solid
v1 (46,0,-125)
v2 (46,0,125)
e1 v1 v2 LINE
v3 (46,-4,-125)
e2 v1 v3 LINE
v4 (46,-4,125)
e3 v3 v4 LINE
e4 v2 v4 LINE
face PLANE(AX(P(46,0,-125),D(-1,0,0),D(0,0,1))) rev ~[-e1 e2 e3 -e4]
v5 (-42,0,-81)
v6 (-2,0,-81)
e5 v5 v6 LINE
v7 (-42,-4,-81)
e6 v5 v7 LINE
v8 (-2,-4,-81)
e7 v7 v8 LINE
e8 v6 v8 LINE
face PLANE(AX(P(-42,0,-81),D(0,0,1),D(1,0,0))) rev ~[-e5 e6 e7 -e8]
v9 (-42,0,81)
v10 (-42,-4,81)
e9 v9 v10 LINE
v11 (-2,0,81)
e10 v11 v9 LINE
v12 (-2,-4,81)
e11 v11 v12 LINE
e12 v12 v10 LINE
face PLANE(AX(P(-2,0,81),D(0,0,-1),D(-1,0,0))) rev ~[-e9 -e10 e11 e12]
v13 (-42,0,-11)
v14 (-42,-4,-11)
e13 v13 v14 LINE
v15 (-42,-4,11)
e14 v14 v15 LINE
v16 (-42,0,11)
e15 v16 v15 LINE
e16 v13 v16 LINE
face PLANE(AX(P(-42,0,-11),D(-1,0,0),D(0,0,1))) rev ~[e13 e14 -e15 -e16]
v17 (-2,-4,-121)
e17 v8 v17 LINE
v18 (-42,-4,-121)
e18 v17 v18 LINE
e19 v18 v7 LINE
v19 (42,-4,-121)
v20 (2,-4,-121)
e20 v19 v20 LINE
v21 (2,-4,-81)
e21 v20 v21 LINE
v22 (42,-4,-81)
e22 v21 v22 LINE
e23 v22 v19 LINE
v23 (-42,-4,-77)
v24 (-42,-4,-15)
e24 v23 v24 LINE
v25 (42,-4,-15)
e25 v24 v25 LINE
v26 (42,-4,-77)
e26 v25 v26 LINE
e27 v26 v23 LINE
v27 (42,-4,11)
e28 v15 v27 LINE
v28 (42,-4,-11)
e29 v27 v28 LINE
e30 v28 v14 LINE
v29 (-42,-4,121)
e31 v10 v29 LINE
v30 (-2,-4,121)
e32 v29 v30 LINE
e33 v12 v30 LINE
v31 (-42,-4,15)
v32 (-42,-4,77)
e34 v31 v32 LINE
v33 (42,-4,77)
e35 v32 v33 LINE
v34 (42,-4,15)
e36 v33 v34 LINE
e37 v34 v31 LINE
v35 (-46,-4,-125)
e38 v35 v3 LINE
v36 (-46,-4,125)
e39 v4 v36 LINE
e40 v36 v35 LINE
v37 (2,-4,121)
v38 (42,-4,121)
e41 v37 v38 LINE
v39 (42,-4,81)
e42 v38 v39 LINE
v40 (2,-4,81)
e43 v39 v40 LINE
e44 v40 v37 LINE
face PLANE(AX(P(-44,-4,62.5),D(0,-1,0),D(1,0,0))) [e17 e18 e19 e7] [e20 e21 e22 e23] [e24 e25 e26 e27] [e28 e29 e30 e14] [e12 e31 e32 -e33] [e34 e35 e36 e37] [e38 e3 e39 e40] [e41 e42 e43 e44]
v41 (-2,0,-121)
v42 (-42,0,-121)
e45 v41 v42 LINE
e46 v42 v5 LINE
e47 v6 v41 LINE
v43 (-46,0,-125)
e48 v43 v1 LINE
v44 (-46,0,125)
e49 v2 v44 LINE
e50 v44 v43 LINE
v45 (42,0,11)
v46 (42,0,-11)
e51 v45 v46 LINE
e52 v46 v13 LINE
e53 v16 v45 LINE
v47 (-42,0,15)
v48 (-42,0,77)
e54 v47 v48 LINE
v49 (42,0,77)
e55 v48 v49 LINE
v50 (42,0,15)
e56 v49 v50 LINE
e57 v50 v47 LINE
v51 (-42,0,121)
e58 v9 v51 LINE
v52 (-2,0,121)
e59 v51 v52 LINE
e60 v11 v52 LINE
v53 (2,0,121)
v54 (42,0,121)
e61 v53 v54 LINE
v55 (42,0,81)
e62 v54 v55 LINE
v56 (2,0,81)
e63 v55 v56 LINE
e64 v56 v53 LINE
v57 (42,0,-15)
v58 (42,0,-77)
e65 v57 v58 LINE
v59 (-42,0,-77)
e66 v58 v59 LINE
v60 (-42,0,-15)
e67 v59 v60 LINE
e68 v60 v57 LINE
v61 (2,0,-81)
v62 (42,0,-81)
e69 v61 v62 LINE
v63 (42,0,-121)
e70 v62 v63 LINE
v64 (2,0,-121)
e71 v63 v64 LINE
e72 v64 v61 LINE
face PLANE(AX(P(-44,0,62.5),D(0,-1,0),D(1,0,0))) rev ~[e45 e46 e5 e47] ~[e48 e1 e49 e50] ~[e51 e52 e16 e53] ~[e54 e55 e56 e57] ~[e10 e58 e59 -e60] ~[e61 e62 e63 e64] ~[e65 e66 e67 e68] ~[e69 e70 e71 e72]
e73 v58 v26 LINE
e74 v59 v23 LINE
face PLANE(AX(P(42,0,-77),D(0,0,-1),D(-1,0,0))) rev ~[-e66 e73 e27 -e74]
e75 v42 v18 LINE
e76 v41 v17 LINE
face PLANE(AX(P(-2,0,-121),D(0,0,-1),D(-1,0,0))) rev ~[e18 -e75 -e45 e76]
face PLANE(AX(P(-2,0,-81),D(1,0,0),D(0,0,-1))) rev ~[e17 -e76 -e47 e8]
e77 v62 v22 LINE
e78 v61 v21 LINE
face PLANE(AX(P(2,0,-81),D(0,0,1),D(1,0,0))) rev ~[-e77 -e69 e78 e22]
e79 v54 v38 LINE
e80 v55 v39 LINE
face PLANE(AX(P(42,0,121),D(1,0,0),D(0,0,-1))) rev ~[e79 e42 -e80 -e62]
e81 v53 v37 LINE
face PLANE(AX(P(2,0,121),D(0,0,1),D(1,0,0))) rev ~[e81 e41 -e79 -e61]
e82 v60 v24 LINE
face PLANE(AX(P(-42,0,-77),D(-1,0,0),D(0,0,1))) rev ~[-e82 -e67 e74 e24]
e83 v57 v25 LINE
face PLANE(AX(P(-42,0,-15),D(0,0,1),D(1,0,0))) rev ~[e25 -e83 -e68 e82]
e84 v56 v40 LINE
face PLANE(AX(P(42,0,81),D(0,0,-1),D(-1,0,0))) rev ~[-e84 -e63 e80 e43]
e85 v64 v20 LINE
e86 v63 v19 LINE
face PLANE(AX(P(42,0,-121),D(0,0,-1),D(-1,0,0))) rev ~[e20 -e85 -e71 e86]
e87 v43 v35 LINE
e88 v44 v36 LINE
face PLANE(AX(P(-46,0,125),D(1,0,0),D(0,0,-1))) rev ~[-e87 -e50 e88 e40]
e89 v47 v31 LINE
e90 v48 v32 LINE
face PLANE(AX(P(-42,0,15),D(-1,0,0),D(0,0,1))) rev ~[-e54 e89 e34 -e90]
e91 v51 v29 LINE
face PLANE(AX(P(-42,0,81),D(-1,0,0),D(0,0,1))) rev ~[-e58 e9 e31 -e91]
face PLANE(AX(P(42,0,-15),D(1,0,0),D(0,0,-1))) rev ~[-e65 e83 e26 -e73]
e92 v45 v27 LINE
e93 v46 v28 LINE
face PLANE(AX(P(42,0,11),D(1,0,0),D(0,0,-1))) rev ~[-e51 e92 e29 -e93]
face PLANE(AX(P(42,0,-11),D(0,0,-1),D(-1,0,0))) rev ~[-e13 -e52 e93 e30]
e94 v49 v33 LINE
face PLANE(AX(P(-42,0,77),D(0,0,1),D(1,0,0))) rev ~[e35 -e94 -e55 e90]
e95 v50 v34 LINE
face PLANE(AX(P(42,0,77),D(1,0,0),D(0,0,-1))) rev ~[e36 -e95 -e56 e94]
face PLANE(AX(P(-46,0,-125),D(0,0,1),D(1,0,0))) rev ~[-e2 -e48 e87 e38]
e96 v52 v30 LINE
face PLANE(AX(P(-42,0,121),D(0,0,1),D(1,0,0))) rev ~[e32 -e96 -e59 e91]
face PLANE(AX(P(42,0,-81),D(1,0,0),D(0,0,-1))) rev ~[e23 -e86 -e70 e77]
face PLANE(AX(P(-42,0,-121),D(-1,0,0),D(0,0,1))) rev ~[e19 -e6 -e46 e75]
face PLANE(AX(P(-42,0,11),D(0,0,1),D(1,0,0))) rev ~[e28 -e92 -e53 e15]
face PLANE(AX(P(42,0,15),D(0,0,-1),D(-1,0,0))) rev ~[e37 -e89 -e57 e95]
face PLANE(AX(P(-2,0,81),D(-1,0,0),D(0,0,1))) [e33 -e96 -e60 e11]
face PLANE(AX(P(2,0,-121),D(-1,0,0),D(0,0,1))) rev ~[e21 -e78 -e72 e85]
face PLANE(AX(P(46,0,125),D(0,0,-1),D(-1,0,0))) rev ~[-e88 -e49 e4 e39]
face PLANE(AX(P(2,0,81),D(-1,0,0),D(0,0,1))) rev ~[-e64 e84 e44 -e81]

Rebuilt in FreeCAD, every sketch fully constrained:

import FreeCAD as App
import Part
import Sketcher

doc = App.newDocument("Part")
body = doc.addObject("PartDesign::Body", "Body")

sketch1 = body.newObject("Sketcher::SketchObject", "Sketch")
sketch1.AttachmentSupport = (doc.getObject("XZ_Plane"), [""])
sketch1.MapMode = "FlatFace"
sketch1.addGeometry([
    Part.LineSegment(App.Vector(-46, 125, 0), App.Vector(-46, -125, 0)),
    Part.LineSegment(App.Vector(-46, -125, 0), App.Vector(46, -125, 0)),
    Part.LineSegment(App.Vector(46, -125, 0), App.Vector(46, 125, 0)),
    Part.LineSegment(App.Vector(46, 125, 0), App.Vector(-46, 125, 0)),
    Part.LineSegment(App.Vector(-42, -121, 0), App.Vector(-42, -81, 0)),
    Part.LineSegment(App.Vector(-42, -81, 0), App.Vector(-2, -81, 0)),
    Part.LineSegment(App.Vector(-2, -81, 0), App.Vector(-2, -121, 0)),
    Part.LineSegment(App.Vector(-2, -121, 0), App.Vector(-42, -121, 0)),
    Part.LineSegment(App.Vector(2, -81, 0), App.Vector(42, -81, 0)),
    Part.LineSegment(App.Vector(42, -81, 0), App.Vector(42, -121, 0)),
    Part.LineSegment(App.Vector(42, -121, 0), App.Vector(2, -121, 0)),
    Part.LineSegment(App.Vector(2, -121, 0), App.Vector(2, -81, 0)),
    Part.LineSegment(App.Vector(-42, -77, 0), App.Vector(-42, -15, 0)),
    Part.LineSegment(App.Vector(-42, -15, 0), App.Vector(42, -15, 0)),
    Part.LineSegment(App.Vector(42, -15, 0), App.Vector(42, -77, 0)),
    Part.LineSegment(App.Vector(42, -77, 0), App.Vector(-42, -77, 0)),
    Part.LineSegment(App.Vector(-42, -11, 0), App.Vector(-42, 11, 0)),
    Part.LineSegment(App.Vector(-42, 11, 0), App.Vector(42, 11, 0)),
    Part.LineSegment(App.Vector(42, 11, 0), App.Vector(42, -11, 0)),
    Part.LineSegment(App.Vector(42, -11, 0), App.Vector(-42, -11, 0)),
    Part.LineSegment(App.Vector(-42, 15, 0), App.Vector(-42, 77, 0)),
    Part.LineSegment(App.Vector(-42, 77, 0), App.Vector(42, 77, 0)),
    Part.LineSegment(App.Vector(42, 77, 0), App.Vector(42, 15, 0)),
    Part.LineSegment(App.Vector(42, 15, 0), App.Vector(-42, 15, 0)),
    Part.LineSegment(App.Vector(-42, 81, 0), App.Vector(-42, 121, 0)),
    Part.LineSegment(App.Vector(-42, 121, 0), App.Vector(-2, 121, 0)),
    Part.LineSegment(App.Vector(-2, 121, 0), App.Vector(-2, 81, 0)),
    Part.LineSegment(App.Vector(-2, 81, 0), App.Vector(-42, 81, 0)),
    Part.LineSegment(App.Vector(2, 121, 0), App.Vector(42, 121, 0)),
    Part.LineSegment(App.Vector(42, 121, 0), App.Vector(42, 81, 0)),
    Part.LineSegment(App.Vector(42, 81, 0), App.Vector(2, 81, 0)),
    Part.LineSegment(App.Vector(2, 81, 0), App.Vector(2, 121, 0)),
], False)
sketch1.addConstraint([
    Sketcher.Constraint("Coincident", 0, 2, 1, 1),
    Sketcher.Constraint("Coincident", 1, 2, 2, 1),
    Sketcher.Constraint("Coincident", 2, 2, 3, 1),
    Sketcher.Constraint("Coincident", 3, 2, 0, 1),
    Sketcher.Constraint("Coincident", 4, 2, 5, 1),
    Sketcher.Constraint("Coincident", 5, 2, 6, 1),
    Sketcher.Constraint("Coincident", 6, 2, 7, 1),
    Sketcher.Constraint("Coincident", 7, 2, 4, 1),
    Sketcher.Constraint("Coincident", 8, 2, 9, 1),
    Sketcher.Constraint("Coincident", 9, 2, 10, 1),
    Sketcher.Constraint("Coincident", 10, 2, 11, 1),
    Sketcher.Constraint("Coincident", 11, 2, 8, 1),
    Sketcher.Constraint("Coincident", 12, 2, 13, 1),
    Sketcher.Constraint("Coincident", 13, 2, 14, 1),
    Sketcher.Constraint("Coincident", 14, 2, 15, 1),
    Sketcher.Constraint("Coincident", 15, 2, 12, 1),
    Sketcher.Constraint("Coincident", 16, 2, 17, 1),
    Sketcher.Constraint("Coincident", 17, 2, 18, 1),
    Sketcher.Constraint("Coincident", 18, 2, 19, 1),
    Sketcher.Constraint("Coincident", 19, 2, 16, 1),
    Sketcher.Constraint("Coincident", 20, 2, 21, 1),
    Sketcher.Constraint("Coincident", 21, 2, 22, 1),
    Sketcher.Constraint("Coincident", 22, 2, 23, 1),
    Sketcher.Constraint("Coincident", 23, 2, 20, 1),
    Sketcher.Constraint("Coincident", 24, 2, 25, 1),
    Sketcher.Constraint("Coincident", 25, 2, 26, 1),
    Sketcher.Constraint("Coincident", 26, 2, 27, 1),
    Sketcher.Constraint("Coincident", 27, 2, 24, 1),
    Sketcher.Constraint("Coincident", 28, 2, 29, 1),
    Sketcher.Constraint("Coincident", 29, 2, 30, 1),
    Sketcher.Constraint("Coincident", 30, 2, 31, 1),
    Sketcher.Constraint("Coincident", 31, 2, 28, 1),
    Sketcher.Constraint("Vertical", 0),
    Sketcher.Constraint("Horizontal", 1),
    Sketcher.Constraint("Vertical", 2),
    Sketcher.Constraint("Horizontal", 3),
    Sketcher.Constraint("Vertical", 4),
    Sketcher.Constraint("Horizontal", 5),
    Sketcher.Constraint("Vertical", 6),
    Sketcher.Constraint("Horizontal", 7),
    Sketcher.Constraint("Horizontal", 8),
    Sketcher.Constraint("Vertical", 9),
    Sketcher.Constraint("Horizontal", 10),
    Sketcher.Constraint("Vertical", 11),
    Sketcher.Constraint("Vertical", 12),
    Sketcher.Constraint("Horizontal", 13),
    Sketcher.Constraint("Vertical", 14),
    Sketcher.Constraint("Horizontal", 15),
    Sketcher.Constraint("Vertical", 16),
    Sketcher.Constraint("Horizontal", 17),
    Sketcher.Constraint("Vertical", 18),
    Sketcher.Constraint("Horizontal", 19),
    Sketcher.Constraint("Vertical", 20),
    Sketcher.Constraint("Horizontal", 21),
    Sketcher.Constraint("Vertical", 22),
    Sketcher.Constraint("Horizontal", 23),
    Sketcher.Constraint("Vertical", 24),
    Sketcher.Constraint("Horizontal", 25),
    Sketcher.Constraint("Vertical", 26),
    Sketcher.Constraint("Horizontal", 27),
    Sketcher.Constraint("Horizontal", 28),
    Sketcher.Constraint("Vertical", 29),
    Sketcher.Constraint("Horizontal", 30),
    Sketcher.Constraint("Vertical", 31),
    Sketcher.Constraint("Symmetric", 0, 2, 2, 2, -1, 1),
    Sketcher.Constraint("Symmetric", 16, 2, 18, 2, -1, 1),
    Sketcher.Constraint("Symmetric", 14, 2, 20, 2, -1, 1),
    Sketcher.Constraint("Symmetric", 12, 2, 22, 2, -1, 1),
    Sketcher.Constraint("Symmetric", 9, 2, 24, 2, -1, 1),
    Sketcher.Constraint("Symmetric", 11, 2, 26, 2, -1, 1),
    Sketcher.Constraint("Symmetric", 7, 2, 28, 2, -1, 1),
    Sketcher.Constraint("Symmetric", 5, 2, 30, 2, -1, 1),
    Sketcher.Constraint("Symmetric", 4, 2, 8, 2, -2),
    Sketcher.Constraint("Symmetric", 6, 2, 10, 2, -2),
    Sketcher.Constraint("Vertical", 7, 2, 12, 2),
    Sketcher.Constraint("Vertical", 9, 2, 13, 2),
    Sketcher.Constraint("Vertical", 15, 2, 16, 2),
    Sketcher.Constraint("Equal", 30, 4),
    Sketcher.Constraint("DistanceX", 1, 1, 1, 2, 92.0),
    Sketcher.Constraint("DistanceX", 5, 1, 5, 2, 40.0),
    Sketcher.Constraint("DistanceX", 13, 1, 13, 2, 84.0),
    Sketcher.Constraint("DistanceY", 0, 2, 0, 1, 250.0),
    Sketcher.Constraint("DistanceY", 12, 1, 12, 2, 62.0),
    Sketcher.Constraint("DistanceY", 16, 1, 16, 2, 22.0),
    Sketcher.Constraint("DistanceY", 4, 2, -1, 1, 81.0),
    Sketcher.Constraint("DistanceY", 12, 2, -1, 1, 15.0),
])
pad1 = body.newObject("PartDesign::Pad", "Pad")
pad1.Profile = sketch1
pad1.Length = 4

doc.recompute()
